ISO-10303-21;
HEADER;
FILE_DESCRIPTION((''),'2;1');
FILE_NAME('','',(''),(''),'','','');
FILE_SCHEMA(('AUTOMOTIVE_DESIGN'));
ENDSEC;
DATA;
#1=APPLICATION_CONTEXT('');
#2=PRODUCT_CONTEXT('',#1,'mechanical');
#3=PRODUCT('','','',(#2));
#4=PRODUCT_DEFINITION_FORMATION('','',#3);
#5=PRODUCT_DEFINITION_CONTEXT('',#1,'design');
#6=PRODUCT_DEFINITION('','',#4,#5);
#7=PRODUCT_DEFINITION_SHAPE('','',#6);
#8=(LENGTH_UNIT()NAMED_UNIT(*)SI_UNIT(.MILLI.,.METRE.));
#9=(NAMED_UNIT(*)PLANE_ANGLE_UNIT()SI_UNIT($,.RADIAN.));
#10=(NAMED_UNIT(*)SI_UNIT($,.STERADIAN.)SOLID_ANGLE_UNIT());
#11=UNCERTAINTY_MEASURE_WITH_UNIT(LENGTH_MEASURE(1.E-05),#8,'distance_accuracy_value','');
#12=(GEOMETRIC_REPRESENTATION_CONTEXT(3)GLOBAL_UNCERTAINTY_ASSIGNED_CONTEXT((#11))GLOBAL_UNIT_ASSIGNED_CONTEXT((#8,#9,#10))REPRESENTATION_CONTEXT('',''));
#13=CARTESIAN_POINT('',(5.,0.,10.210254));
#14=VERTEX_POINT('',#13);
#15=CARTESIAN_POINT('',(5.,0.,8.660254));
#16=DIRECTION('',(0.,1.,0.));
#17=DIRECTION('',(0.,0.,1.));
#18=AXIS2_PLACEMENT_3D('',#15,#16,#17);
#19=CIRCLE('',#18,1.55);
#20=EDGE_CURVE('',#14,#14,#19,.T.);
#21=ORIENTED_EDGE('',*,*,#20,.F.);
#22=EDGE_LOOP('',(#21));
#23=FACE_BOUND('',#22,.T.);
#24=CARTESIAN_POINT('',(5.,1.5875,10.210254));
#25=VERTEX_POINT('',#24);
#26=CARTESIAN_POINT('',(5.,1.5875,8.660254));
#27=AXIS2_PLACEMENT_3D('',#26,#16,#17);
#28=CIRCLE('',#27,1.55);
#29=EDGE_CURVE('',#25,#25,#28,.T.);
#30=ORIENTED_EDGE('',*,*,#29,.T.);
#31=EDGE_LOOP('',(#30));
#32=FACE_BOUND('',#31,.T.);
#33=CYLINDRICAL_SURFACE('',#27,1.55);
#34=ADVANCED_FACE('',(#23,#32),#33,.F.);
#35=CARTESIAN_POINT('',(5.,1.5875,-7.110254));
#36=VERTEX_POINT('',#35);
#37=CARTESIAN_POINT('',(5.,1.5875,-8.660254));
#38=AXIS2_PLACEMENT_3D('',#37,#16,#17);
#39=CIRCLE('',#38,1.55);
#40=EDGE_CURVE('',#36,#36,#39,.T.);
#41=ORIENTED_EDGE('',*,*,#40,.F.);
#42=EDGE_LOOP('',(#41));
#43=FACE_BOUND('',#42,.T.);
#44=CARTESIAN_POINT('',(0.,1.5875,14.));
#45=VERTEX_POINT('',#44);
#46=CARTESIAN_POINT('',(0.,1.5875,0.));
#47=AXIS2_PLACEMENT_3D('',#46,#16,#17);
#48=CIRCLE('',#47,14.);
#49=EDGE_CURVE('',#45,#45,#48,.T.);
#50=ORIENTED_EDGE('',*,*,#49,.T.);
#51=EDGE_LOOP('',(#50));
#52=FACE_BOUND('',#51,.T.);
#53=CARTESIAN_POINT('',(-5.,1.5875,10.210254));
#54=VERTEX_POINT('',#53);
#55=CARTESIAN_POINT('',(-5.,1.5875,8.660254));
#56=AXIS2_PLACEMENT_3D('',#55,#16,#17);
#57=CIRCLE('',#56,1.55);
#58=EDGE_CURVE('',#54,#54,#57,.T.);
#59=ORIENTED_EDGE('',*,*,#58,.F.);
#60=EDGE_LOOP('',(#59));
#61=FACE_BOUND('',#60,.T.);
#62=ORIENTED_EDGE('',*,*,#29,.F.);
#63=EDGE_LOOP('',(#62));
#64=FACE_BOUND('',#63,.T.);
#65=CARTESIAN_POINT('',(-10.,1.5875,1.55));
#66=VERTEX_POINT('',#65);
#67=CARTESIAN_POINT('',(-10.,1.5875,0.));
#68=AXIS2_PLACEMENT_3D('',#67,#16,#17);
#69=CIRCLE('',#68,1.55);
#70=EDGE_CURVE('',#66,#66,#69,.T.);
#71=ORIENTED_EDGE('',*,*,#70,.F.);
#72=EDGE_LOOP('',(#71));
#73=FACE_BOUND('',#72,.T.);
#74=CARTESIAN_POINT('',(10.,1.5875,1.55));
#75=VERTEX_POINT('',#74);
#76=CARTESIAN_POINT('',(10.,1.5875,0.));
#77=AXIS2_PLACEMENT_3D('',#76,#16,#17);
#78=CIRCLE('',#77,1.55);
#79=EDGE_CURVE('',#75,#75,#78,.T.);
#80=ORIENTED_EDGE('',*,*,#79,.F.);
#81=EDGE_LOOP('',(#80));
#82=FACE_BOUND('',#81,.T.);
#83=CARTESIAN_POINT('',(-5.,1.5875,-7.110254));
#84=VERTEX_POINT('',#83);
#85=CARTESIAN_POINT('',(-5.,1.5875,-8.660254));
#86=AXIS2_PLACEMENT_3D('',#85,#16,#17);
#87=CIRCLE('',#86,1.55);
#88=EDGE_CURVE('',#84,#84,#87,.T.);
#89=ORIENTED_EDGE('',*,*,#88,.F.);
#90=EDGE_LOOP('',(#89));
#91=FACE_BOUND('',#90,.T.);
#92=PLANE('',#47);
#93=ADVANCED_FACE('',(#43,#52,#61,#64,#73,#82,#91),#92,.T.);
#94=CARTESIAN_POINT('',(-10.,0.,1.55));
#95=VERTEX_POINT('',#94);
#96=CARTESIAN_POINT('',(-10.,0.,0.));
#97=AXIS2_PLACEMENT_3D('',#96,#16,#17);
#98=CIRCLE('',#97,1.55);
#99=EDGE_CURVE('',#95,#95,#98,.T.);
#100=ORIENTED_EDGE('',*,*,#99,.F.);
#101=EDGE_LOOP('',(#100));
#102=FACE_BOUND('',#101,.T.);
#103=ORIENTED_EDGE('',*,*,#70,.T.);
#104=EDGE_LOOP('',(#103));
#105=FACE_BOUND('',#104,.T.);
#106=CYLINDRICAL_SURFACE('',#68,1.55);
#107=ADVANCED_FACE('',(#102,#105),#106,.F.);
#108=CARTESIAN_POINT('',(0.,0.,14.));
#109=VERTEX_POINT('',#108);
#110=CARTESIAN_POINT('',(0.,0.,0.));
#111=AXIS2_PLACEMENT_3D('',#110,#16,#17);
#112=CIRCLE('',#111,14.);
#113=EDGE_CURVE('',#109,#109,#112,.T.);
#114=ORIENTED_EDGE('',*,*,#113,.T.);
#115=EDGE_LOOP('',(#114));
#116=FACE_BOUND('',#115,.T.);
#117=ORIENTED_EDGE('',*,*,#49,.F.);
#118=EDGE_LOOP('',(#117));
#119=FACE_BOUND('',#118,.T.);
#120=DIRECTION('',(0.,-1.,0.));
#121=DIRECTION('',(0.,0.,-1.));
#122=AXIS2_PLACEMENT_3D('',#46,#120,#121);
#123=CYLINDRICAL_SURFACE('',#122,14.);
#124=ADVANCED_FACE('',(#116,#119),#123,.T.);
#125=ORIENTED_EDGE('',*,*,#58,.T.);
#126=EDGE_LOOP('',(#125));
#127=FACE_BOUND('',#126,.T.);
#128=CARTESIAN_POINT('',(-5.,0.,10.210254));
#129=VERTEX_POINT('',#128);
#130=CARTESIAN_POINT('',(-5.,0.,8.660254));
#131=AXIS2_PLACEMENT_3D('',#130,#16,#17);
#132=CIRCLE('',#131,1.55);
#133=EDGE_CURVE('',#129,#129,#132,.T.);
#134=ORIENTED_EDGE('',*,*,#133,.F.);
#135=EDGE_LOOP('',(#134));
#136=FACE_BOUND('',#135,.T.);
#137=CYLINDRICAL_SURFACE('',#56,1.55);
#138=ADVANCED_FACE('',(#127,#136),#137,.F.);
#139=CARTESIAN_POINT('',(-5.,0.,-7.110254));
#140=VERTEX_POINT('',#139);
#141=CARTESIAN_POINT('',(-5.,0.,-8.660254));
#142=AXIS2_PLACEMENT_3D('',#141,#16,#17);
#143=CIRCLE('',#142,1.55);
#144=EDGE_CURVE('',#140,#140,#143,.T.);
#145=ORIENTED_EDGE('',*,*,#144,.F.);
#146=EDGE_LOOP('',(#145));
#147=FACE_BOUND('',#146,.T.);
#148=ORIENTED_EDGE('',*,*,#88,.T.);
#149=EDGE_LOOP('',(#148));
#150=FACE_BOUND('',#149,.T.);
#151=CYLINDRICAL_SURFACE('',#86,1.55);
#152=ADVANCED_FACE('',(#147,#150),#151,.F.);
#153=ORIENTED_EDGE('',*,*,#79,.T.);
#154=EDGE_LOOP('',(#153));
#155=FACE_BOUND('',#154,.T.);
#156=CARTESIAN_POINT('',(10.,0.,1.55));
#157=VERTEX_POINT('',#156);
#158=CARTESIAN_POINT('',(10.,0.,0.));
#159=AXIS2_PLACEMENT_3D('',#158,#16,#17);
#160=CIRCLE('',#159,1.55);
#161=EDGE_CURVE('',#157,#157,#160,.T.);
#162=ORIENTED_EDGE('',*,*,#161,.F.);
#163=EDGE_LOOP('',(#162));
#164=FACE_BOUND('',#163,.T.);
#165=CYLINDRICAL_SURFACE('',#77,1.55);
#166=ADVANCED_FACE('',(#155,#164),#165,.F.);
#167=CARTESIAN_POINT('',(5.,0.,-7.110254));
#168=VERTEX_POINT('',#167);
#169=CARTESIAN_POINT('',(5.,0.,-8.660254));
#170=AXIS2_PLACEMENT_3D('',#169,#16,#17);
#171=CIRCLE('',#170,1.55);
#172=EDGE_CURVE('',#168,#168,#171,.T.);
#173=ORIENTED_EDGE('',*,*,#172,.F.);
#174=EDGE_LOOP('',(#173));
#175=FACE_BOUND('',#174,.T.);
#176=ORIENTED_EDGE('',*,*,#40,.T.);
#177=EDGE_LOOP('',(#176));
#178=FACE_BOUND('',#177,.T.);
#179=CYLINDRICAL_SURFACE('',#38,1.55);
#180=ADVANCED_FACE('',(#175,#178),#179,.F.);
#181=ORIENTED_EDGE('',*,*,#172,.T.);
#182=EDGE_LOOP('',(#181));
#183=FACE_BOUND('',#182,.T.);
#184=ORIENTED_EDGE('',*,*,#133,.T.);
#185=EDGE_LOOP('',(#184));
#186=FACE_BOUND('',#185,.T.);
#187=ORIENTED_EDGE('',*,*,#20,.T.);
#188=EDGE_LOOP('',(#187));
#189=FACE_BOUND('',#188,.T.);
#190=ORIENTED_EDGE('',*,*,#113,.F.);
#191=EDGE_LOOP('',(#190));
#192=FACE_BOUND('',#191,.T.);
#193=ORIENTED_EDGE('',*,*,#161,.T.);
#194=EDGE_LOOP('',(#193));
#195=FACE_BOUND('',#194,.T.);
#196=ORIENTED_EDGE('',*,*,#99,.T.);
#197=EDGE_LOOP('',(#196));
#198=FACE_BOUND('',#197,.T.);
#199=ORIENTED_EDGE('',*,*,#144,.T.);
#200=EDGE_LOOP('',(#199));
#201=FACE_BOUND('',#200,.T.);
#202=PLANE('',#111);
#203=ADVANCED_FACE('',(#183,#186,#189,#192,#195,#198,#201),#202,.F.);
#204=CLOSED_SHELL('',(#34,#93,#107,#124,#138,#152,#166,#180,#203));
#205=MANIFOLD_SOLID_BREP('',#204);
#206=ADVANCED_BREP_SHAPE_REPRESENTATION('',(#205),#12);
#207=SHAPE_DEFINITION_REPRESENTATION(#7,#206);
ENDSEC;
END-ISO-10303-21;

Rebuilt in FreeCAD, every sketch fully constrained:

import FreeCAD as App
import Part
import Sketcher

doc = App.newDocument("Part")
params = doc.addObject("Spreadsheet::Sheet", "Params")
for row, (alias, value) in enumerate([
    ("sketch1_diameter", "28 mm"),
    ("pad1_length", "1.5875 mm"),
    ("sketch2_diameter", "3.1 mm"),
    ("hole_diameter", "3.1 mm"),
], start=1):
    params.set(f"A{row}", alias)
    params.set(f"B{row}", "=" + value)
    params.setAlias(f"B{row}", alias)

body = doc.addObject("PartDesign::Body", "Body")

sketch1 = body.newObject("Sketcher::SketchObject", "Sketch")
sketch1.AttachmentSupport = (doc.getObject("XZ_Plane"), [""])
sketch1.MapMode = "FlatFace"
sketch1.addGeometry(Part.Circle(App.Vector(0, 0, 0), App.Vector(0, 0, 1), 14), False)
sketch1.addConstraint([
    Sketcher.Constraint("Coincident", 0, 3, -1, 1),
    Sketcher.Constraint("Diameter", 0, 28.0),
])
sketch1.setExpression("Constraints[1]", "Params.sketch1_diameter")
pad1 = body.newObject("PartDesign::Pad", "Pad")
pad1.Profile = sketch1
pad1.setExpression("Length", "Params.pad1_length")
pad1.Reversed = True

sketch2 = body.newObject("Sketcher::SketchObject", "Sketch001")
sketch2.AttachmentSupport = (doc.getObject("XZ_Plane"), [""])
sketch2.MapMode = "FlatFace"
sketch2.AttachmentOffset = App.Placement(App.Vector(0, 0, -1.5875), App.Rotation())
sketch2.addGeometry([
    Part.Circle(App.Vector(-5, 8.660254, 0), App.Vector(0, 0, 1), 1.55),
    Part.Circle(App.Vector(-10, 0, 0), App.Vector(0, 0, 1), 1.55),
    Part.Circle(App.Vector(-5, -8.660254, 0), App.Vector(0, 0, 1), 1.55),
    Part.Circle(App.Vector(5, -8.660254, 0), App.Vector(0, 0, 1), 1.55),
    Part.Circle(App.Vector(10, 0, 0), App.Vector(0, 0, 1), 1.55),
    Part.Circle(App.Vector(5, 8.660254, 0), App.Vector(0, 0, 1), 1.55),
], False)
sketch2.addConstraint([
    Sketcher.Constraint("Equal", 0, 1),
    Sketcher.Constraint("Equal", 1, 2),
    Sketcher.Constraint("Equal", 2, 3),
    Sketcher.Constraint("Equal", 3, 4),
    Sketcher.Constraint("Equal", 4, 5),
    Sketcher.Constraint("Symmetric", 0, 3, 3, 3, -1, 1),
    Sketcher.Constraint("Symmetric", 1, 3, 4, 3, -1, 1),
    Sketcher.Constraint("Symmetric", 2, 3, 5, 3, -1, 1),
    Sketcher.Constraint("Symmetric", 2, 3, 3, 3, -2),
    Sketcher.Constraint("PointOnObject", 1, 3, -1),
    Sketcher.Constraint("Diameter", 0, 3.1),
    Sketcher.Constraint("DistanceX", 0, 3, -1, 1, 5.0),
    Sketcher.Constraint("DistanceX", 1, 3, -1, 1, 10.0),
    Sketcher.Constraint("DistanceY", 2, 3, 0, 3, 17.320508),
])
sketch2.setExpression("Constraints[10]", "Params.sketch2_diameter")
doc.recompute()
hole = body.newObject("PartDesign::Hole", "Hole")
hole.Profile = sketch2
hole.ThreadType = "None"
hole.setExpression("Diameter", "Params.hole_diameter")
hole.DepthType = "ThroughAll"
hole.Reversed = True

doc.recompute()
